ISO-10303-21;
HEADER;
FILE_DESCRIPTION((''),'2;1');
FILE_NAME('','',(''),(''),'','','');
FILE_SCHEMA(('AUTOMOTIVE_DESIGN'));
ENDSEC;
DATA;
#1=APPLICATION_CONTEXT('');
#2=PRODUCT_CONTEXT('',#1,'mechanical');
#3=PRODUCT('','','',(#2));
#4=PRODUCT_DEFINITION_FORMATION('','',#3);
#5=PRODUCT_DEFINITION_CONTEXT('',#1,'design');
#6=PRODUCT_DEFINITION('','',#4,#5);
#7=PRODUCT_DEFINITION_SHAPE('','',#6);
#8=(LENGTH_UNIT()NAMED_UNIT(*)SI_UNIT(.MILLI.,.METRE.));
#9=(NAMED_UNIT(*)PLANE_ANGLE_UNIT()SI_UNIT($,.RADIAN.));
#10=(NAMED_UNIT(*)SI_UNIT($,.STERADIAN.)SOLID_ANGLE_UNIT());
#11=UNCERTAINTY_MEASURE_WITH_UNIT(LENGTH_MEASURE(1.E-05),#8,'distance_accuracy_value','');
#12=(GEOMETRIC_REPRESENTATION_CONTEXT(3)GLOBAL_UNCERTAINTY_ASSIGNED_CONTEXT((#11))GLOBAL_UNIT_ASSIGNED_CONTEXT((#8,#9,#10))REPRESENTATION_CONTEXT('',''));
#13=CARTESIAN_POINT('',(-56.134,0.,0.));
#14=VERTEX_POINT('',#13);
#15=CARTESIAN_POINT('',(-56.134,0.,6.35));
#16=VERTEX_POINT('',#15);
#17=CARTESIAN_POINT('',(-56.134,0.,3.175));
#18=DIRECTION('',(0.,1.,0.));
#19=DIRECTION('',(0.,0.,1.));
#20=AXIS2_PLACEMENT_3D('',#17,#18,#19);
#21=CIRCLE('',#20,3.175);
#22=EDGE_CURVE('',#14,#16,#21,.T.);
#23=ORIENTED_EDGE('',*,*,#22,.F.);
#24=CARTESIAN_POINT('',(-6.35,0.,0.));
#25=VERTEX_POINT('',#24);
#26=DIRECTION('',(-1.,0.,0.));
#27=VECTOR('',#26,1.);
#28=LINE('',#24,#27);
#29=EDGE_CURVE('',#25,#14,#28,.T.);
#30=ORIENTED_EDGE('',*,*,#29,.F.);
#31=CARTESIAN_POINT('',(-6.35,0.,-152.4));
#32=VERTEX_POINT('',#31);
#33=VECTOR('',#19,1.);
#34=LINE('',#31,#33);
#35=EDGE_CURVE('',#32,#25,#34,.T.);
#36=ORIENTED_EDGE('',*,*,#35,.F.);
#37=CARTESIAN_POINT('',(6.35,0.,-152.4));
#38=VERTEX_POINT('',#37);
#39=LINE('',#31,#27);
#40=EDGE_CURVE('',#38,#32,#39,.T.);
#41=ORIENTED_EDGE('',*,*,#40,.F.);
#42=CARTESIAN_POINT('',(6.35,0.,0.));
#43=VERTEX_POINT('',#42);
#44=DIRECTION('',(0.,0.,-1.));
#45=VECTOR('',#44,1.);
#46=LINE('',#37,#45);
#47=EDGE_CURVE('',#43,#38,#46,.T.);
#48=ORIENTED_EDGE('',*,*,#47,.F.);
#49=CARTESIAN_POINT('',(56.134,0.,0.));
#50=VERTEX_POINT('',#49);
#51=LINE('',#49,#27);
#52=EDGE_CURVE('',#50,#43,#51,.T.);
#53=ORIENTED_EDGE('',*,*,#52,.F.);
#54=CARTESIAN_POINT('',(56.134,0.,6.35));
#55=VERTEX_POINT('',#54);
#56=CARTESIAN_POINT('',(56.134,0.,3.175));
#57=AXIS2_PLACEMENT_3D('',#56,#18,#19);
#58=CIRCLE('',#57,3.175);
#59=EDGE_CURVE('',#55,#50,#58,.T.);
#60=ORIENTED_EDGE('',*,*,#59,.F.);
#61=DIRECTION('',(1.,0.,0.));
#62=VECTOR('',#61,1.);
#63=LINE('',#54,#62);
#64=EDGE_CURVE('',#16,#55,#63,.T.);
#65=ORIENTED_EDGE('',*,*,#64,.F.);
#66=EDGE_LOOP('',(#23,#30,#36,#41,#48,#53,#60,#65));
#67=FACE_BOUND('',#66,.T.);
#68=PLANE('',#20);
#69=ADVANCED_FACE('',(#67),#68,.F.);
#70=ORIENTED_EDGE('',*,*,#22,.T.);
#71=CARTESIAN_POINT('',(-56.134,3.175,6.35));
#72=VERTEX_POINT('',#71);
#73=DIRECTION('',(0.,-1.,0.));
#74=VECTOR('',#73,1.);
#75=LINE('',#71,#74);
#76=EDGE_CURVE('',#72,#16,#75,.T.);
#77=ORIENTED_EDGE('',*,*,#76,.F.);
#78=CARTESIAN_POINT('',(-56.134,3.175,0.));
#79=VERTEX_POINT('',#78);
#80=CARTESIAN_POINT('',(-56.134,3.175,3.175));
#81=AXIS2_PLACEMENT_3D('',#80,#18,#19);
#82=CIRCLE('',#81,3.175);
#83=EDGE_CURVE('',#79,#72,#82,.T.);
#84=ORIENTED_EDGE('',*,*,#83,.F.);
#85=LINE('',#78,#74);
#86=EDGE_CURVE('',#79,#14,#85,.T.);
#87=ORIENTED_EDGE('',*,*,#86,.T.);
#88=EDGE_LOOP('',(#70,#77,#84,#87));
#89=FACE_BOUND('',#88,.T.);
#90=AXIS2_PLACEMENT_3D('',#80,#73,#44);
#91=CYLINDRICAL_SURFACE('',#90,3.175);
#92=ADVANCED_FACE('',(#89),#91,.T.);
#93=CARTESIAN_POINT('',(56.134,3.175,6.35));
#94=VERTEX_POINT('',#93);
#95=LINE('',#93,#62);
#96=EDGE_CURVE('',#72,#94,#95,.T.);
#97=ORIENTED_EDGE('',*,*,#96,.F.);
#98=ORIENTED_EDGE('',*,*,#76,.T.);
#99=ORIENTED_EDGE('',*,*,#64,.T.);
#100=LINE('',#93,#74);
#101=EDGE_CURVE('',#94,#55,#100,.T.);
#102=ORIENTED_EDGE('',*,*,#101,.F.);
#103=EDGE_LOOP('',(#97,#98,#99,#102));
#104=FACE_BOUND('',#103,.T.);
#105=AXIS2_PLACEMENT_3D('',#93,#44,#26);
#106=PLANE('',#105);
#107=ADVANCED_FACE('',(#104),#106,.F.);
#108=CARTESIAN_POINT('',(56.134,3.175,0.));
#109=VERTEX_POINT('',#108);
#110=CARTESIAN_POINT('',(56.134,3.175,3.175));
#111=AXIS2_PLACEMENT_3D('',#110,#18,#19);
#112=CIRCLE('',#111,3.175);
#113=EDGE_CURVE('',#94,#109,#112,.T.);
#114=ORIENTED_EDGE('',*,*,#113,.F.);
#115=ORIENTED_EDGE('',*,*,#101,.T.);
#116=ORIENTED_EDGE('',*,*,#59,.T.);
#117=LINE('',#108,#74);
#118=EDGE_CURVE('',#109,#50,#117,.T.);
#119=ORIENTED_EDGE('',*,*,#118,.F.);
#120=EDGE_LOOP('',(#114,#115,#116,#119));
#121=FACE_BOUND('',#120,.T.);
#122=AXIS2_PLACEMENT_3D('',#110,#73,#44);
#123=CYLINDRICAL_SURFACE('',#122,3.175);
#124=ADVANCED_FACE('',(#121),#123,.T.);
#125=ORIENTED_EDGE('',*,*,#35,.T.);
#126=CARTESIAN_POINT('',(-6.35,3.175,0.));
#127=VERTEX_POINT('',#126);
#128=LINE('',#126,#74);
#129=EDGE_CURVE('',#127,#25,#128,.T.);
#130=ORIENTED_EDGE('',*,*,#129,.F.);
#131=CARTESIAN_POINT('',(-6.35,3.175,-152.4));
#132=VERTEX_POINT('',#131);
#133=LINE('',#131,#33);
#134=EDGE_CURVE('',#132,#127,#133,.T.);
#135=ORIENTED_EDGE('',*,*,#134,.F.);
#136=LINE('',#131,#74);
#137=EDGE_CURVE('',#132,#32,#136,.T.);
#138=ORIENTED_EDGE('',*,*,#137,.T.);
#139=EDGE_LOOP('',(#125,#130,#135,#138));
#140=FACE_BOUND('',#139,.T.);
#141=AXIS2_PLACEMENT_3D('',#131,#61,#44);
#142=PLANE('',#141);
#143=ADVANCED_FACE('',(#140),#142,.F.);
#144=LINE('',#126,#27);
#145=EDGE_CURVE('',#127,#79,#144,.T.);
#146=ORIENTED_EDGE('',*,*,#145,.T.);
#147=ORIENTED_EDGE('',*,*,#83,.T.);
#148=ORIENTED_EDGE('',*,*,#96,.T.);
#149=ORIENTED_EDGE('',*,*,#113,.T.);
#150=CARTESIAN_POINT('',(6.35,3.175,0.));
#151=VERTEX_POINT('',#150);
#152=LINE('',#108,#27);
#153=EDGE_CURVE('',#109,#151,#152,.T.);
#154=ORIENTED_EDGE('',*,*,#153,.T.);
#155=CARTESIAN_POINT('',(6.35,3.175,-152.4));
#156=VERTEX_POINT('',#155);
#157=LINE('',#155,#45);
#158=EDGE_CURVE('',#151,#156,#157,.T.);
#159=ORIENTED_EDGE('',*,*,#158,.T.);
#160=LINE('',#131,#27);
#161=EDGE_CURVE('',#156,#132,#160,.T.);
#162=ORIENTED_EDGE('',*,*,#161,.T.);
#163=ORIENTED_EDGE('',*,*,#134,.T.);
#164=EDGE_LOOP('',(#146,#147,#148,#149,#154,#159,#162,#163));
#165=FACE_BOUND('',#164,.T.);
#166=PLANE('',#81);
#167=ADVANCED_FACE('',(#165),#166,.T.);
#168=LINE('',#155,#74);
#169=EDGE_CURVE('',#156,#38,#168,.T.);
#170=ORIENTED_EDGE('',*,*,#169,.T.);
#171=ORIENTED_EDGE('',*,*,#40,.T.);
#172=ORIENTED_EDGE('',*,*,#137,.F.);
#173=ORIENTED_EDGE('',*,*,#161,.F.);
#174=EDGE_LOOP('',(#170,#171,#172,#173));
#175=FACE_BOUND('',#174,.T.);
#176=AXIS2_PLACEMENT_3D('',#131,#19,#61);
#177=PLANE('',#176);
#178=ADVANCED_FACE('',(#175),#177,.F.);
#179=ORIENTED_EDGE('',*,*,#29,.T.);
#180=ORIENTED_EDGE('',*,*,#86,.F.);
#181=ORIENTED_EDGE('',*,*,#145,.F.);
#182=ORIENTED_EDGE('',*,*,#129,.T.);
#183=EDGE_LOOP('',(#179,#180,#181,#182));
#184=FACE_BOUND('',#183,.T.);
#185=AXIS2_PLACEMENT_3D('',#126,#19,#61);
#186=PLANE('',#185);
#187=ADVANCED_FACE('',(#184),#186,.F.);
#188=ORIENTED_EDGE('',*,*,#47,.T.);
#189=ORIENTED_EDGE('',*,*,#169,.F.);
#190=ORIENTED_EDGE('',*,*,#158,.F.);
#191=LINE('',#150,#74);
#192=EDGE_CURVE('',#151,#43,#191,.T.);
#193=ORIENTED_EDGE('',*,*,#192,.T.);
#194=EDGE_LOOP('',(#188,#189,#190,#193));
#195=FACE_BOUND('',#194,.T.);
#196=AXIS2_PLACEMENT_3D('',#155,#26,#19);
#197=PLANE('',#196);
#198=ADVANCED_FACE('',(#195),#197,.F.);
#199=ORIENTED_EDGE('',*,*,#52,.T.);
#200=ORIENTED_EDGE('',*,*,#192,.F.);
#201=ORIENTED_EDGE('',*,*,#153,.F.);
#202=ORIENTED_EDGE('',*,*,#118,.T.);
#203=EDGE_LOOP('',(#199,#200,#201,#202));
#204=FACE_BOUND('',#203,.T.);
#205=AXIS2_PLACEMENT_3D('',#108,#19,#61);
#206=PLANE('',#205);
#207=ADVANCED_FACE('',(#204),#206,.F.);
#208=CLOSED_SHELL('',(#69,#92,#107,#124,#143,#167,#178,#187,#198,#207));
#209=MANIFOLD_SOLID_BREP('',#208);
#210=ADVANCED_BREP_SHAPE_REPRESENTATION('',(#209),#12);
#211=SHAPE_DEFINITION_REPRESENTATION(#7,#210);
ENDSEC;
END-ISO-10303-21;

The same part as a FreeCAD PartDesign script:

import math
import FreeCAD as App
import Part
import Sketcher

V = App.Vector
Q = App.Units.Quantity

doc = App.newDocument("Part")
body = doc.addObject("PartDesign::Body", "Body")

sketch1 = body.newObject("Sketcher::SketchObject", "Sketch")
sketch1.AttachmentSupport = (doc.getObject("XZ_Plane"), [""])
sketch1.MapMode = "FlatFace"
sketch1.addGeometry([
    Part.LineSegment(V(-6.3, 0, 0), V(-56.1, 0, 0)),
    Part.ArcOfCircle(Part.Circle(V(-56.1, 3.2, 0), V(0, 0, 1), 3.2), math.radians(90), math.radians(270)),
    Part.LineSegment(V(-56.1, 6.3, 0), V(56.1, 6.3, 0)),
    Part.ArcOfCircle(Part.Circle(V(56.1, 3.2, 0), V(0, 0, 1), 3.2), math.radians(-90), math.radians(90)),
    Part.LineSegment(V(56.1, 0, 0), V(6.3, 0, 0)),
    Part.LineSegment(V(6.3, 0, 0), V(6.3, -152.4, 0)),
    Part.LineSegment(V(6.3, -152.4, 0), V(-6.3, -152.4, 0)),
    Part.LineSegment(V(-6.3, -152.4, 0), V(-6.3, 0, 0)),
], False)
sketch1.addConstraint([
    Sketcher.Constraint("Tangent", 0, 2, 1, 2),
    Sketcher.Constraint("Tangent", 1, 1, 2, 1),
    Sketcher.Constraint("Tangent", 2, 2, 3, 2),
    Sketcher.Constraint("Tangent", 3, 1, 4, 1),
    Sketcher.Constraint("Coincident", 4, 2, 5, 1),
    Sketcher.Constraint("Coincident", 5, 2, 6, 1),
    Sketcher.Constraint("Coincident", 6, 2, 7, 1),
    Sketcher.Constraint("Coincident", 7, 2, 0, 1),
    Sketcher.Constraint("Horizontal", 0),
    Sketcher.Constraint("Horizontal", 2),
    Sketcher.Constraint("Horizontal", 4),
    Sketcher.Constraint("Vertical", 5),
    Sketcher.Constraint("Horizontal", 6),
    Sketcher.Constraint("Vertical", 7),
    Sketcher.Constraint("Equal", 1, 3),
    Sketcher.Constraint("Symmetric", 0, 2, 3, 1, -1, 1),
    Sketcher.Constraint("Equal", 0, 4),
    Sketcher.Constraint("DistanceY", 5, 2, 5, 1, Q("6 in")),
    Sketcher.Constraint("DistanceX", 6, 2, 6, 1, Q("0.5 in")),
    Sketcher.Constraint("Radius", 1, Q("0.125 in")),
    Sketcher.Constraint("DistanceX", 0, 2, 0, 1, Q("1.96 in")),
])
pad1 = body.newObject("PartDesign::Pad", "Pad")
pad1.Profile = sketch1
pad1.Length = Q("0.125 in")
pad1.Reversed = True

doc.recompute()
